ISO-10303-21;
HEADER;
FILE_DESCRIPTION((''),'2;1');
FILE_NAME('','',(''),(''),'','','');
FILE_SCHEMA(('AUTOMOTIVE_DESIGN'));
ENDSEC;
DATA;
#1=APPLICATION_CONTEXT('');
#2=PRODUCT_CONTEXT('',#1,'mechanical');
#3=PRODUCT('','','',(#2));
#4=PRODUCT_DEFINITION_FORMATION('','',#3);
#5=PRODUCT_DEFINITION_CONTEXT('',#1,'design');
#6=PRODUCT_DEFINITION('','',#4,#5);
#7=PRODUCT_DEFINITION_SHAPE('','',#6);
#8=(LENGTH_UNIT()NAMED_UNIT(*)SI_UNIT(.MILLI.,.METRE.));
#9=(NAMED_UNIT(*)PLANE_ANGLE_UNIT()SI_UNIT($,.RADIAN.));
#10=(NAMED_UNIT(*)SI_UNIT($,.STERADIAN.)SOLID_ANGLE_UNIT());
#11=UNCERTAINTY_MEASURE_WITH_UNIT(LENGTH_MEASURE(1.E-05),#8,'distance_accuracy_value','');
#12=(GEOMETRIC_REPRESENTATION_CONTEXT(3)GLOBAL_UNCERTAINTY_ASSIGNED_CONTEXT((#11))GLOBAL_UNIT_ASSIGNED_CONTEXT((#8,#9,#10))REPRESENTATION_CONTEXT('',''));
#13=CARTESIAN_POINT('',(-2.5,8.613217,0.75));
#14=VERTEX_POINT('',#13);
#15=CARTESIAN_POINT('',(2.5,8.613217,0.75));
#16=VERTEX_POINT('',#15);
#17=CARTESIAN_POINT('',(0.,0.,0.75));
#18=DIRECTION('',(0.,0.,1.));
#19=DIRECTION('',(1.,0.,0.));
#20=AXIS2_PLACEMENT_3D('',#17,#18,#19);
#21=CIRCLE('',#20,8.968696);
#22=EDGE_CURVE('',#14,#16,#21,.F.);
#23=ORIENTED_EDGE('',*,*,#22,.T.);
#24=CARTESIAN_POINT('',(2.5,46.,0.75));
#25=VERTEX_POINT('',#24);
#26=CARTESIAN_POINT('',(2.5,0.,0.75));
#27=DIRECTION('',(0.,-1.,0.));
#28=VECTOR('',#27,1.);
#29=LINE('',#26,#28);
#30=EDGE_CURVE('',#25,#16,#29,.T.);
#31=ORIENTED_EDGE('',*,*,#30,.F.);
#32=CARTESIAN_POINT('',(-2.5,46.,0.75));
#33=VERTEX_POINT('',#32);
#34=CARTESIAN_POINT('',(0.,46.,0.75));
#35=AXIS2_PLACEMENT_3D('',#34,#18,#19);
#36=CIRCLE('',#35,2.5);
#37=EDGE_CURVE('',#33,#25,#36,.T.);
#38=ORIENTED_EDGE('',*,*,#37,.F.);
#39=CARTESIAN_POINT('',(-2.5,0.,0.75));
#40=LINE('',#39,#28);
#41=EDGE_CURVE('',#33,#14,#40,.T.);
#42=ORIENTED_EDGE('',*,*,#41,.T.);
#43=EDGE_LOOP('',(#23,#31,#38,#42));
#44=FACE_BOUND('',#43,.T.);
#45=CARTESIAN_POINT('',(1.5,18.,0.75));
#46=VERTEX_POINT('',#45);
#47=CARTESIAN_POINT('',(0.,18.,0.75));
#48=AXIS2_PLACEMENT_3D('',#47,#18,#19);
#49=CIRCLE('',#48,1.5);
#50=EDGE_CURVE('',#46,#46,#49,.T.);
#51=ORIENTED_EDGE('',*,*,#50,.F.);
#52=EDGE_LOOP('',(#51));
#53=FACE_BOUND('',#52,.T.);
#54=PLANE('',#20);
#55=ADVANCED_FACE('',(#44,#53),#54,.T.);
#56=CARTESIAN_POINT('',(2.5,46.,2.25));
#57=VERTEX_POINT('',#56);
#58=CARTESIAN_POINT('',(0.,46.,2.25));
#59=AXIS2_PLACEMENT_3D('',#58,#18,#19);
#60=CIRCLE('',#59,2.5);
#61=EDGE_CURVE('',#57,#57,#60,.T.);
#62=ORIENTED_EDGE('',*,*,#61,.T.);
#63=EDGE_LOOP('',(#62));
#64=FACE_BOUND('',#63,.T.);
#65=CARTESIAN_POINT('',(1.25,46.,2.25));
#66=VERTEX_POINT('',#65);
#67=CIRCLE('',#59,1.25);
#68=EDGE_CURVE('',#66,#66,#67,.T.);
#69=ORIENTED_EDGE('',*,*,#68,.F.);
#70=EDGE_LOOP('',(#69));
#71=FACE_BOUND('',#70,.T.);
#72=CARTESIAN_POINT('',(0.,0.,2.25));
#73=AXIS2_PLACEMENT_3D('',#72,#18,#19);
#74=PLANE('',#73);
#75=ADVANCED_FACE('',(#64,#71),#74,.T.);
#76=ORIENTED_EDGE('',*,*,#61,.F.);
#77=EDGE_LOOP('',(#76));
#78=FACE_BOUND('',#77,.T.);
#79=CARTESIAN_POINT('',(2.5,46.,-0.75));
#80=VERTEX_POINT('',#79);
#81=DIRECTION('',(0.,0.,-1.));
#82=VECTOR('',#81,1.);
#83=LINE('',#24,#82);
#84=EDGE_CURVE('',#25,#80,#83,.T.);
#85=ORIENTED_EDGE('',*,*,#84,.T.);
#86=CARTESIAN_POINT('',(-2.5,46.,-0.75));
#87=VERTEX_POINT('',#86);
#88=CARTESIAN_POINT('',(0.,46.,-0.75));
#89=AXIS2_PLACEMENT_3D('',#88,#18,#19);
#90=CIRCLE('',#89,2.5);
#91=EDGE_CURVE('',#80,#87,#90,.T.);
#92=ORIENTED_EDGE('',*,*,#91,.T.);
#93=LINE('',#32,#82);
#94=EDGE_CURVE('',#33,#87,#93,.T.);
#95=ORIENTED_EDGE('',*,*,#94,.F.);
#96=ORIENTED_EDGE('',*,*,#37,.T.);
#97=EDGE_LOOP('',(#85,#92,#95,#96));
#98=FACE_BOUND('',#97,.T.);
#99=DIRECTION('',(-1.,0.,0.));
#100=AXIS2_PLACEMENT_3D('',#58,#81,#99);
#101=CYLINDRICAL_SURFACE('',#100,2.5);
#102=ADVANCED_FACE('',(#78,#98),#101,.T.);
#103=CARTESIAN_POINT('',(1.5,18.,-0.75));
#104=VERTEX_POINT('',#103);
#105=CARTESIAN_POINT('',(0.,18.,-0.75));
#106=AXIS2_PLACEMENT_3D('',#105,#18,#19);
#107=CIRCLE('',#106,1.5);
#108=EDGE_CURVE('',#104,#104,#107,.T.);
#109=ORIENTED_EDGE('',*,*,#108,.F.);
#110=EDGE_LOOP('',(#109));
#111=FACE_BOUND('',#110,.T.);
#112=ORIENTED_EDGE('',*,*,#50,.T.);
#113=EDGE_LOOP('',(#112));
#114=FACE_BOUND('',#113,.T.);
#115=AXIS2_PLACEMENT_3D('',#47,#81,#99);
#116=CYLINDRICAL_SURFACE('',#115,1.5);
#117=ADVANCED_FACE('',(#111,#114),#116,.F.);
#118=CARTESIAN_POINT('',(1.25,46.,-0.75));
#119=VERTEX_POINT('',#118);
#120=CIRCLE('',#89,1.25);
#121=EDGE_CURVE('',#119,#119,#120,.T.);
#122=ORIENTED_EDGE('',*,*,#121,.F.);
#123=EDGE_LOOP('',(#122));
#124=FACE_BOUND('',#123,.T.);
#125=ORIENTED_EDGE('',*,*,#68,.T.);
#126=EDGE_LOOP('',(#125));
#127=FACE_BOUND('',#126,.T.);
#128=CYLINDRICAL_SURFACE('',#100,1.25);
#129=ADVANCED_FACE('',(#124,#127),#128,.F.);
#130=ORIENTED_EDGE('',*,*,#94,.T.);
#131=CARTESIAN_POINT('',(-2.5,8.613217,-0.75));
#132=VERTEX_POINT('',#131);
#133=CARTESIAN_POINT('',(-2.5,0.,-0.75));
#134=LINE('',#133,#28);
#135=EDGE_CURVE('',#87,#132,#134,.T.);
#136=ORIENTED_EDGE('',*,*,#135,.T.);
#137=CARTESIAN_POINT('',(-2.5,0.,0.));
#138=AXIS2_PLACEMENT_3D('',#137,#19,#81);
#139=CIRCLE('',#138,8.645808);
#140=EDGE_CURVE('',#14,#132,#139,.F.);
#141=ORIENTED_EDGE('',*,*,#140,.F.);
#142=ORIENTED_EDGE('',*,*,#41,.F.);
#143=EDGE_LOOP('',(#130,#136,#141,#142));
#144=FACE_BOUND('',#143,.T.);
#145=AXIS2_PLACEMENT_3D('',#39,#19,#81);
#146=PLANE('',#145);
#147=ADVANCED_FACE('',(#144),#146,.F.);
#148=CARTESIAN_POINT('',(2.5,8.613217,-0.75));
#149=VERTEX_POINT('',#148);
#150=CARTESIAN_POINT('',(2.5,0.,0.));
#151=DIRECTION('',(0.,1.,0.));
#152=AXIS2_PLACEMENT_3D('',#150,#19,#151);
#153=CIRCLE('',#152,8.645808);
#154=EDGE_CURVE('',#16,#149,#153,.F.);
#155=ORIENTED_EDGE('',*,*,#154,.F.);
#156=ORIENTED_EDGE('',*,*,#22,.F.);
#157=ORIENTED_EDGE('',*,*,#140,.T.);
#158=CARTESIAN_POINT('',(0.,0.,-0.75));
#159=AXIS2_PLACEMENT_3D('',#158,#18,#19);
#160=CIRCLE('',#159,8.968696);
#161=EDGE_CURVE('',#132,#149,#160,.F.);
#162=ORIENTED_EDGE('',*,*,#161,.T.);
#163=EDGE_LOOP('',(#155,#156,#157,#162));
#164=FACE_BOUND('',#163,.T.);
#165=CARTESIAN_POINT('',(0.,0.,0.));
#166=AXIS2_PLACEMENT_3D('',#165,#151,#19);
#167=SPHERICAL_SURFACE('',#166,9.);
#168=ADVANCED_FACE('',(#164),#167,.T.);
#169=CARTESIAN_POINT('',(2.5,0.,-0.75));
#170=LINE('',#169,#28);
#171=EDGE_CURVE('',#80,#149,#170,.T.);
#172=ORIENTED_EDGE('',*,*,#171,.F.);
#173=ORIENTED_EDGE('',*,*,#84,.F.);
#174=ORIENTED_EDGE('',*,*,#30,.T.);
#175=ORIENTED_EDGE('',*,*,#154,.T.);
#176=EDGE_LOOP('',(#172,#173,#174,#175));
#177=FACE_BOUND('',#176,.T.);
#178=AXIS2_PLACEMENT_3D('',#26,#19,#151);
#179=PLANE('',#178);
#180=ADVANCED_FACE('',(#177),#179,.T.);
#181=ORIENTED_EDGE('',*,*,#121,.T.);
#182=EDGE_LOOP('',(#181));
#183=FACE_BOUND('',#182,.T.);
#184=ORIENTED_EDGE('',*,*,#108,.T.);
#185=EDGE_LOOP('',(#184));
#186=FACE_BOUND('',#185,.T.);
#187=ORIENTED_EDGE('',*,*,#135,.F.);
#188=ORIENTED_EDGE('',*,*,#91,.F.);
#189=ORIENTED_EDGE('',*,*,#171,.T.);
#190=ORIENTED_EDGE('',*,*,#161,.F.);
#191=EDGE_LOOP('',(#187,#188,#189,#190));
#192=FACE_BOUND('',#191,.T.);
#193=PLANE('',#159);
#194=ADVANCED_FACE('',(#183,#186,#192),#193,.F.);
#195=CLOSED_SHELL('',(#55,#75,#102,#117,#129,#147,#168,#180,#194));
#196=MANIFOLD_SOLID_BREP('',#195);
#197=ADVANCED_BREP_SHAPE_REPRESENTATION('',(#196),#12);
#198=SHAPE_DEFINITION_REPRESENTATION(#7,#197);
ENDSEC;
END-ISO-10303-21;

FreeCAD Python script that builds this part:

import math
import FreeCAD as App
import Part
import Sketcher
from FreeCAD import Vector
Q = App.Units.Quantity

doc = App.newDocument("Part")
body = doc.addObject("PartDesign::Body", "Body")

# Sketch on XY plane
sketch1 = doc.addObject("Sketcher::SketchObject", "Sketch")
body.addObject(sketch1)
sketch1.AttachmentSupport = (doc.XY_Plane, [""])
sketch1.MapMode = "FlatFace"
sketch1.addGeometry(Part.LineSegment(Vector(0, -9, 0), Vector(0, 9, 0)), False)
sketch1.addGeometry(Part.ArcOfCircle(Part.Circle(Vector(0, 0, 0), Vector(0, 0, 1), 9), math.radians(90), math.radians(270)), False)
sketch1.addConstraint(Sketcher.Constraint("Coincident", 0, 1, 1, 2))
sketch1.addConstraint(Sketcher.Constraint("Coincident", 1, 1, 0, 2))
sketch1.addConstraint(Sketcher.Constraint("Vertical", 0))
sketch1.addConstraint(Sketcher.Constraint("Coincident", 1, 3, -1, 1))
sketch1.addConstraint(Sketcher.Constraint("PointOnObject", 0, 1, -2))
sketch1.addConstraint(Sketcher.Constraint("Radius", 1, Q("9 mm")))
revolution = doc.addObject("PartDesign::Revolution", "Revolution")
body.addObject(revolution)
revolution.Profile = sketch1
revolution.ReferenceAxis = (sketch1, ["V_Axis"])
revolution.Angle = 360

# Sketch on XY plane
sketch2 = doc.addObject("Sketcher::SketchObject", "Sketch001")
body.addObject(sketch2)
sketch2.AttachmentSupport = (doc.XY_Plane, [""])
sketch2.MapMode = "FlatFace"
sketch2.addGeometry(Part.ArcOfCircle(Part.Circle(Vector(0, 46, 0), Vector(0, 0, 1), 2.5), math.radians(180), math.radians(360)), False)
sketch2.addGeometry(Part.LineSegment(Vector(-2.5, 46, 0), Vector(-2.5, 7, 0)), False)
sketch2.addGeometry(Part.LineSegment(Vector(-2.5, 7, 0), Vector(2.5, 7, 0)), False)
sketch2.addGeometry(Part.LineSegment(Vector(2.5, 7, 0), Vector(2.5, 46, 0)), False)
sketch2.addGeometry(Part.Circle(Vector(0, 18, 0), Vector(0, 0, 1), 1.5), False)
sketch2.addConstraint(Sketcher.Constraint("Tangent", 0, 1, 1, 1))
sketch2.addConstraint(Sketcher.Constraint("Coincident", 1, 2, 2, 1))
sketch2.addConstraint(Sketcher.Constraint("Coincident", 2, 2, 3, 1))
sketch2.addConstraint(Sketcher.Constraint("Tangent", 3, 2, 0, 2))
sketch2.addConstraint(Sketcher.Constraint("Vertical", 1))
sketch2.addConstraint(Sketcher.Constraint("Horizontal", 2))
sketch2.addConstraint(Sketcher.Constraint("Vertical", 3))
sketch2.addConstraint(Sketcher.Constraint("PointOnObject", 0, 3, -2))
sketch2.addConstraint(Sketcher.Constraint("PointOnObject", 4, 3, -2))
sketch2.addConstraint(Sketcher.Constraint("Diameter", 4, Q("3 mm")))
sketch2.addConstraint(Sketcher.Constraint("Radius", 0, Q("2.5 mm")))
sketch2.addConstraint(Sketcher.Constraint("DistanceY", -1, 1, 0, 3, Q("46 mm")))
sketch2.addConstraint(Sketcher.Constraint("DistanceY", -1, 1, 4, 3, Q("18 mm")))
sketch2.addConstraint(Sketcher.Constraint("DistanceY", 1, 2, 1, 1, Q("39.025907 mm")))
pad1 = doc.addObject("PartDesign::Pad", "Pad")
body.addObject(pad1)
pad1.Profile = sketch2
pad1.Length = 1.5
pad1.Midplane = True

# Sketch on XY plane
sketch3 = doc.addObject("Sketcher::SketchObject", "Sketch002")
body.addObject(sketch3)
sketch3.AttachmentSupport = (doc.XY_Plane, [""])
sketch3.MapMode = "FlatFace"
sketch3.addGeometry(Part.Circle(Vector(0, 46, 0), Vector(0, 0, 1), 2.5), False)
sketch3.addGeometry(Part.Circle(Vector(0, 46, 0), Vector(0, 0, 1), 1.2), False)
sketch3.addConstraint(Sketcher.Constraint("Coincident", 1, 3, 0, 3))
sketch3.addConstraint(Sketcher.Constraint("PointOnObject", 0, 3, -2))
sketch3.addConstraint(Sketcher.Constraint("Diameter", 0, Q("5 mm")))
sketch3.addConstraint(Sketcher.Constraint("Diameter", 1, Q("2.5 mm")))
sketch3.addConstraint(Sketcher.Constraint("DistanceY", -1, 1, 0, 3, Q("46 mm")))
pad2 = doc.addObject("PartDesign::Pad", "Pad001")
body.addObject(pad2)
pad2.Profile = sketch3
pad2.Type = "TwoLengths"
pad2.Length = 2.25
pad2.Length2 = 0.75

doc.recompute()
